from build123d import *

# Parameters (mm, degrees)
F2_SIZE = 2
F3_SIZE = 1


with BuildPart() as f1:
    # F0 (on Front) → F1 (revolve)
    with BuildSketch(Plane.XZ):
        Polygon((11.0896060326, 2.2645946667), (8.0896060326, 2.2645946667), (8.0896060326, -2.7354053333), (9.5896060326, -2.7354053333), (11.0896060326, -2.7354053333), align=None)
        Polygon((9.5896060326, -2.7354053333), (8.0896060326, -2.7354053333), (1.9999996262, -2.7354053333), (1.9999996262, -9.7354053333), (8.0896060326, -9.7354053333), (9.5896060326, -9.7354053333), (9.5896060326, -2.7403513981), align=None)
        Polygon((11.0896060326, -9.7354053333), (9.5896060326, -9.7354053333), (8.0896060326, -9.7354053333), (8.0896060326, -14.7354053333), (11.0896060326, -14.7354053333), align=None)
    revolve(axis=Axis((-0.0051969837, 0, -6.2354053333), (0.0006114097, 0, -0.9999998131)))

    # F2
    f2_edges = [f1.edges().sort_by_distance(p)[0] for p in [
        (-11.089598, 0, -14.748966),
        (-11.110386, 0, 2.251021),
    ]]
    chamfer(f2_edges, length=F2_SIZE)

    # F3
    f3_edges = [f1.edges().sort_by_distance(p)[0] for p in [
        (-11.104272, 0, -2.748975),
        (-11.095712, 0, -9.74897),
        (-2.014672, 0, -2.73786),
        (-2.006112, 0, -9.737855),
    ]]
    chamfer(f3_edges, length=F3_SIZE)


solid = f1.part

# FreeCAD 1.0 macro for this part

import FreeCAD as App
import Part
import Sketcher
from FreeCAD import Vector
Q = App.Units.Quantity


def edges_at(feature, points):
    """Names of the edges that pass closest to the given points."""
    edges = feature.Shape.Edges
    near = lambda p: min(range(len(edges)), key=lambda i: edges[i].distToShape(Part.Vertex(*p))[0])
    return sorted({f"Edge{near(p) + 1}" for p in points})

doc = App.newDocument("Part")
body = doc.addObject("PartDesign::Body", "Body")

# Sketch on XZ plane
sketch1 = body.newObject("Sketcher::SketchObject", "Sketch")
sketch1.AttachmentSupport = (doc.getObject("XZ_Plane"), [""])
sketch1.MapMode = "FlatFace"
sketch1.addGeometry([
    Part.LineSegment(Vector(11.1, 2.3, 0), Vector(8.1, 2.3, 0)),  # 0
    Part.LineSegment(Vector(8.1, 2.3, 0), Vector(8.1, -2.7, 0)),  # 1
    Part.LineSegment(Vector(8.1, -2.7, 0), Vector(2, -2.7, 0)),  # 2
    Part.LineSegment(Vector(2, -2.7, 0), Vector(2, -9.7, 0)),  # 3
    Part.LineSegment(Vector(2, -9.7, 0), Vector(8.1, -9.7, 0)),  # 4
    Part.LineSegment(Vector(8.1, -9.7, 0), Vector(8.1, -14.7, 0)),  # 5
    Part.LineSegment(Vector(8.1, -14.7, 0), Vector(11.1, -14.7, 0)),  # 6
    Part.LineSegment(Vector(11.1, -14.7, 0), Vector(11.1, -9.7, 0)),  # 7
    Part.LineSegment(Vector(11.1, -9.7, 0), Vector(9.6, -9.7, 0)),  # 8
    Part.LineSegment(Vector(9.6, -9.7, 0), Vector(9.6, -2.7, 0)),  # 9
    Part.LineSegment(Vector(9.6, -2.7, 0), Vector(11.1, -2.7, 0)),  # 10
    Part.LineSegment(Vector(11.1, -2.7, 0), Vector(11.1, 2.3, 0)),  # 11
], False)
sketch1.addGeometry(Part.LineSegment(Vector(0, 2.3, 0), Vector(0, -14.7, 0)), True)  # axis
sketch1.addConstraint([
    Sketcher.Constraint("Coincident", 0, 2, 1, 1),
    Sketcher.Constraint("Coincident", 1, 2, 2, 1),
    Sketcher.Constraint("Coincident", 2, 2, 3, 1),
    Sketcher.Constraint("Coincident", 3, 2, 4, 1),
    Sketcher.Constraint("Coincident", 4, 2, 5, 1),
    Sketcher.Constraint("Coincident", 5, 2, 6, 1),
    Sketcher.Constraint("Coincident", 6, 2, 7, 1),
    Sketcher.Constraint("Coincident", 7, 2, 8, 1),
    Sketcher.Constraint("Coincident", 8, 2, 9, 1),
    Sketcher.Constraint("Coincident", 9, 2, 10, 1),
    Sketcher.Constraint("Coincident", 10, 2, 11, 1),
    Sketcher.Constraint("Coincident", 11, 2, 0, 1),
    Sketcher.Constraint("Horizontal", 0),
    Sketcher.Constraint("Vertical", 1),
    Sketcher.Constraint("Horizontal", 2),
    Sketcher.Constraint("Vertical", 3),
    Sketcher.Constraint("Horizontal", 4),
    Sketcher.Constraint("Vertical", 5),
    Sketcher.Constraint("Horizontal", 6),
    Sketcher.Constraint("Vertical", 7),
    Sketcher.Constraint("Horizontal", 8),
    Sketcher.Constraint("Vertical", 9),
    Sketcher.Constraint("Horizontal", 10),
    Sketcher.Constraint("Vertical", 11),
    Sketcher.Constraint("Horizontal", 4, 2, 7, 2),
    Sketcher.Constraint("Horizontal", 2, 2, 9, 2),
    Sketcher.Constraint("Vertical", 1, 2, 4, 2),
    Sketcher.Constraint("Vertical", 7, 2, 10, 2),
    Sketcher.Constraint("Equal", 1, 5),
    Sketcher.Constraint("DistanceX", 0, 2, 0, 1, Q("3 mm")),
    Sketcher.Constraint("DistanceY", 1, 2, 1, 1, Q("5 mm")),
    Sketcher.Constraint("DistanceY", 3, 2, 3, 1, Q("7 mm")),
    Sketcher.Constraint("DistanceX", 8, 2, 8, 1, Q("1.5 mm")),
    Sketcher.Constraint("DistanceX", -1, 1, 2, 2, Q("2 mm")),
    Sketcher.Constraint("DistanceX", 12, 2, 5, 2, Q("8.089602 mm")),
    Sketcher.Constraint("Distance", 12, Q("17.001831 mm")),
    Sketcher.Constraint("DistanceX", 2, 2, 2, 1, Q("6.089606 mm")),
    Sketcher.Constraint("DistanceX", 12, 1, -1, 1, Q("0.010391 mm")),
    Sketcher.Constraint("DistanceY", 12, 2, 3, 2, Q("5.00678 mm")),
    Sketcher.Constraint("DistanceY", -1, 1, 0, 2, Q("2.264595 mm")),
])
revolution = body.newObject("PartDesign::Revolution", "Revolution")
revolution.Profile = sketch1
revolution.ReferenceAxis = (sketch1, ["Axis0"])
revolution.Angle = 360
doc.recompute()

chamfer = body.newObject("PartDesign::Chamfer", "Chamfer")
chamfer.Base = (revolution, edges_at(revolution, [(-11.09, 0, -14.749), (-11.11, 0, 2.251)]))
chamfer.Size = 2
doc.recompute()

chamfer2 = body.newObject("PartDesign::Chamfer", "Chamfer001")
chamfer2.Base = (chamfer, edges_at(chamfer, [
    (-11.104, 0, -2.749),
    (-11.096, 0, -9.749),
    (-2.015, 0, -2.738),
    (-2.006, 0, -9.738),
]))
chamfer2.Size = 1

doc.recompute()
